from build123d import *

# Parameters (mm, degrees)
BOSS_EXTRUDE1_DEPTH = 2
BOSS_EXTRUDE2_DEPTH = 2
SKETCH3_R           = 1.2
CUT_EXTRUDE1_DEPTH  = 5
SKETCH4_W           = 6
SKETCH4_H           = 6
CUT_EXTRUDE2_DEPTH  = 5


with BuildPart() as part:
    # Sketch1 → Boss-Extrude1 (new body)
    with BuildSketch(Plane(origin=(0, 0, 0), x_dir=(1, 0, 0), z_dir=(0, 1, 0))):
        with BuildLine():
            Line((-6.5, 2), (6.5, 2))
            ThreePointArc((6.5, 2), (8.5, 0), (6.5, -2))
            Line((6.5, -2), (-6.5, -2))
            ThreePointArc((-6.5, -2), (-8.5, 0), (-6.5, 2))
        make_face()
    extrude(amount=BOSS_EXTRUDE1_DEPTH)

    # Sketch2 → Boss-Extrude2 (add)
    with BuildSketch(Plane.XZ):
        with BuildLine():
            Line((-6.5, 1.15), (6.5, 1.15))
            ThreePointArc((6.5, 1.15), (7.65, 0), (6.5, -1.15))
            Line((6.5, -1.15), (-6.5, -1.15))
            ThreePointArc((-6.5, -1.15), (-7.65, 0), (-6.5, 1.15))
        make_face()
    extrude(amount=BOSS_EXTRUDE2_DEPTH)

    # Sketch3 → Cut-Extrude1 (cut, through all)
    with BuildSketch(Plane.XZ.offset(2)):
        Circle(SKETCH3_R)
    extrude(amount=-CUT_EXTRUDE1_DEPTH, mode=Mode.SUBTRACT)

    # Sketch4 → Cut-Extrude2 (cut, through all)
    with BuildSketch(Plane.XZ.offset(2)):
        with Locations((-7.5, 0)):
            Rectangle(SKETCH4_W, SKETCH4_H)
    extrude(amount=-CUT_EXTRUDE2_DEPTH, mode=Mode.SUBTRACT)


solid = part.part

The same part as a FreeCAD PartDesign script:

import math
import FreeCAD as App
import Part
import Sketcher

V = App.Vector
Q = App.Units.Quantity

doc = App.newDocument("Part")
params = doc.addObject("Spreadsheet::Sheet", "Params")
for row, (alias, value) in enumerate([
    ("sketch1_radius", "2 mm"),
    ("sketch1_width", "13 mm"),
    ("pad1_length", "2 mm"),
    ("sketch2_width", "13 mm"),
    ("sketch2_radius", "1.15 mm"),
    ("pad2_length", "2 mm"),
    ("sketch3_diameter", "2.4 mm"),
    ("sketch4_width", "6 mm"),
], start=1):
    params.set(f"A{row}", alias)
    params.set(f"B{row}", "=" + value)
    params.setAlias(f"B{row}", alias)

body = doc.addObject("PartDesign::Body", "Body")

sketch1 = body.newObject("Sketcher::SketchObject", "Sketch")
sketch1.AttachmentSupport = (doc.getObject("XZ_Plane"), [""])
sketch1.MapMode = "FlatFace"
sketch1.addGeometry([
    Part.LineSegment(V(6.5, -2, 0), V(-6.5, -2, 0)),
    Part.ArcOfCircle(Part.Circle(V(-6.5, 0, 0), V(0, 0, 1), 2), math.radians(90), math.radians(270)),
    Part.LineSegment(V(-6.5, 2, 0), V(6.5, 2, 0)),
    Part.ArcOfCircle(Part.Circle(V(6.5, 0, 0), V(0, 0, 1), 2), math.radians(-90), math.radians(90)),
], False)
sketch1.addConstraint([
    Sketcher.Constraint("Tangent", 0, 2, 1, 2),
    Sketcher.Constraint("Tangent", 1, 1, 2, 1),
    Sketcher.Constraint("Tangent", 2, 2, 3, 2),
    Sketcher.Constraint("Tangent", 3, 1, 0, 1),
    Sketcher.Constraint("Horizontal", 0),
    Sketcher.Constraint("Horizontal", 2),
    Sketcher.Constraint("Symmetric", 1, 3, 3, 3, -1, 1),
    Sketcher.Constraint("Radius", 1, Q("2 mm")),
    Sketcher.Constraint("DistanceX", 0, 2, 0, 1, Q("13 mm")),
])
sketch1.setExpression("Constraints[7]", "Params.sketch1_radius")
sketch1.setExpression("Constraints[8]", "Params.sketch1_width")
pad1 = body.newObject("PartDesign::Pad", "Pad")
pad1.Profile = sketch1
pad1.setExpression("Length", "Params.pad1_length")
pad1.Reversed = True

sketch2 = body.newObject("Sketcher::SketchObject", "Sketch001")
sketch2.AttachmentSupport = (doc.getObject("XZ_Plane"), [""])
sketch2.MapMode = "FlatFace"
sketch2.addGeometry([
    Part.LineSegment(V(6.5, 1.15, 0), V(-6.5, 1.15, 0)),
    Part.ArcOfCircle(Part.Circle(V(-6.5, 0, 0), V(0, 0, 1), 1.15), math.radians(90), math.radians(270)),
    Part.LineSegment(V(-6.5, -1.15, 0), V(6.5, -1.15, 0)),
    Part.ArcOfCircle(Part.Circle(V(6.5, 0, 0), V(0, 0, 1), 1.15), math.radians(-90), math.radians(90)),
], False)
sketch2.addConstraint([
    Sketcher.Constraint("Tangent", 0, 2, 1, 1),
    Sketcher.Constraint("Tangent", 1, 2, 2, 1),
    Sketcher.Constraint("Tangent", 2, 2, 3, 1),
    Sketcher.Constraint("Tangent", 3, 2, 0, 1),
    Sketcher.Constraint("Horizontal", 0),
    Sketcher.Constraint("Horizontal", 2),
    Sketcher.Constraint("Symmetric", 1, 3, 3, 3, -1, 1),
    Sketcher.Constraint("DistanceX", 0, 2, 0, 1, Q("13 mm")),
    Sketcher.Constraint("Radius", 1, Q("1.15 mm")),
])
sketch2.setExpression("Constraints[7]", "Params.sketch2_width")
sketch2.setExpression("Constraints[8]", "Params.sketch2_radius")
pad2 = body.newObject("PartDesign::Pad", "Pad001")
pad2.Profile = sketch2
pad2.setExpression("Length", "Params.pad2_length")

sketch3 = body.newObject("Sketcher::SketchObject", "Sketch002")
sketch3.AttachmentSupport = (doc.getObject("XZ_Plane"), [""])
sketch3.MapMode = "FlatFace"
sketch3.AttachmentOffset = App.Placement(V(0, 0, 2), App.Rotation())
sketch3.addGeometry(Part.Circle(V(0, 0, 0), V(0, 0, 1), 1.2), False)
sketch3.addConstraint([
    Sketcher.Constraint("Coincident", 0, 3, -1, 1),
    Sketcher.Constraint("Diameter", 0, Q("2.4 mm")),
])
sketch3.setExpression("Constraints[1]", "Params.sketch3_diameter")
pocket1 = body.newObject("PartDesign::Pocket", "Pocket")
pocket1.Profile = sketch3
pocket1.Type = "ThroughAll"

sketch4 = body.newObject("Sketcher::SketchObject", "Sketch003")
sketch4.AttachmentSupport = (doc.getObject("XZ_Plane"), [""])
sketch4.MapMode = "FlatFace"
sketch4.AttachmentOffset = App.Placement(V(0, 0, 2), App.Rotation())
sketch4.addGeometry([
    Part.LineSegment(V(-10.5, 3, 0), V(-10.5, -3, 0)),
    Part.LineSegment(V(-10.5, -3, 0), V(-4.5, -3, 0)),
    Part.LineSegment(V(-4.5, -3, 0), V(-4.5, 3, 0)),
    Part.LineSegment(V(-4.5, 3, 0), V(-10.5, 3, 0)),
], False)
sketch4.addConstraint([
    Sketcher.Constraint("Coincident", 0, 2, 1, 1),
    Sketcher.Constraint("Coincident", 1, 2, 2, 1),
    Sketcher.Constraint("Coincident", 2, 2, 3, 1),
    Sketcher.Constraint("Coincident", 3, 2, 0, 1),
    Sketcher.Constraint("Vertical", 0),
    Sketcher.Constraint("Horizontal", 1),
    Sketcher.Constraint("Vertical", 2),
    Sketcher.Constraint("Horizontal", 3),
    Sketcher.Constraint("Equal", 3, 0),
    Sketcher.Constraint("DistanceX", 1, 1, 1, 2, Q("6 mm")),
    Sketcher.Constraint("DistanceY", 0, 2, -1, 1, Q("3 mm")),
    Sketcher.Constraint("DistanceX", 0, 2, -1, 1, Q("10.5 mm")),
])
sketch4.setExpression("Constraints[9]", "Params.sketch4_width")
pocket2 = body.newObject("PartDesign::Pocket", "Pocket001")
pocket2.Profile = sketch4
pocket2.Type = "ThroughAll"

doc.recompute()
